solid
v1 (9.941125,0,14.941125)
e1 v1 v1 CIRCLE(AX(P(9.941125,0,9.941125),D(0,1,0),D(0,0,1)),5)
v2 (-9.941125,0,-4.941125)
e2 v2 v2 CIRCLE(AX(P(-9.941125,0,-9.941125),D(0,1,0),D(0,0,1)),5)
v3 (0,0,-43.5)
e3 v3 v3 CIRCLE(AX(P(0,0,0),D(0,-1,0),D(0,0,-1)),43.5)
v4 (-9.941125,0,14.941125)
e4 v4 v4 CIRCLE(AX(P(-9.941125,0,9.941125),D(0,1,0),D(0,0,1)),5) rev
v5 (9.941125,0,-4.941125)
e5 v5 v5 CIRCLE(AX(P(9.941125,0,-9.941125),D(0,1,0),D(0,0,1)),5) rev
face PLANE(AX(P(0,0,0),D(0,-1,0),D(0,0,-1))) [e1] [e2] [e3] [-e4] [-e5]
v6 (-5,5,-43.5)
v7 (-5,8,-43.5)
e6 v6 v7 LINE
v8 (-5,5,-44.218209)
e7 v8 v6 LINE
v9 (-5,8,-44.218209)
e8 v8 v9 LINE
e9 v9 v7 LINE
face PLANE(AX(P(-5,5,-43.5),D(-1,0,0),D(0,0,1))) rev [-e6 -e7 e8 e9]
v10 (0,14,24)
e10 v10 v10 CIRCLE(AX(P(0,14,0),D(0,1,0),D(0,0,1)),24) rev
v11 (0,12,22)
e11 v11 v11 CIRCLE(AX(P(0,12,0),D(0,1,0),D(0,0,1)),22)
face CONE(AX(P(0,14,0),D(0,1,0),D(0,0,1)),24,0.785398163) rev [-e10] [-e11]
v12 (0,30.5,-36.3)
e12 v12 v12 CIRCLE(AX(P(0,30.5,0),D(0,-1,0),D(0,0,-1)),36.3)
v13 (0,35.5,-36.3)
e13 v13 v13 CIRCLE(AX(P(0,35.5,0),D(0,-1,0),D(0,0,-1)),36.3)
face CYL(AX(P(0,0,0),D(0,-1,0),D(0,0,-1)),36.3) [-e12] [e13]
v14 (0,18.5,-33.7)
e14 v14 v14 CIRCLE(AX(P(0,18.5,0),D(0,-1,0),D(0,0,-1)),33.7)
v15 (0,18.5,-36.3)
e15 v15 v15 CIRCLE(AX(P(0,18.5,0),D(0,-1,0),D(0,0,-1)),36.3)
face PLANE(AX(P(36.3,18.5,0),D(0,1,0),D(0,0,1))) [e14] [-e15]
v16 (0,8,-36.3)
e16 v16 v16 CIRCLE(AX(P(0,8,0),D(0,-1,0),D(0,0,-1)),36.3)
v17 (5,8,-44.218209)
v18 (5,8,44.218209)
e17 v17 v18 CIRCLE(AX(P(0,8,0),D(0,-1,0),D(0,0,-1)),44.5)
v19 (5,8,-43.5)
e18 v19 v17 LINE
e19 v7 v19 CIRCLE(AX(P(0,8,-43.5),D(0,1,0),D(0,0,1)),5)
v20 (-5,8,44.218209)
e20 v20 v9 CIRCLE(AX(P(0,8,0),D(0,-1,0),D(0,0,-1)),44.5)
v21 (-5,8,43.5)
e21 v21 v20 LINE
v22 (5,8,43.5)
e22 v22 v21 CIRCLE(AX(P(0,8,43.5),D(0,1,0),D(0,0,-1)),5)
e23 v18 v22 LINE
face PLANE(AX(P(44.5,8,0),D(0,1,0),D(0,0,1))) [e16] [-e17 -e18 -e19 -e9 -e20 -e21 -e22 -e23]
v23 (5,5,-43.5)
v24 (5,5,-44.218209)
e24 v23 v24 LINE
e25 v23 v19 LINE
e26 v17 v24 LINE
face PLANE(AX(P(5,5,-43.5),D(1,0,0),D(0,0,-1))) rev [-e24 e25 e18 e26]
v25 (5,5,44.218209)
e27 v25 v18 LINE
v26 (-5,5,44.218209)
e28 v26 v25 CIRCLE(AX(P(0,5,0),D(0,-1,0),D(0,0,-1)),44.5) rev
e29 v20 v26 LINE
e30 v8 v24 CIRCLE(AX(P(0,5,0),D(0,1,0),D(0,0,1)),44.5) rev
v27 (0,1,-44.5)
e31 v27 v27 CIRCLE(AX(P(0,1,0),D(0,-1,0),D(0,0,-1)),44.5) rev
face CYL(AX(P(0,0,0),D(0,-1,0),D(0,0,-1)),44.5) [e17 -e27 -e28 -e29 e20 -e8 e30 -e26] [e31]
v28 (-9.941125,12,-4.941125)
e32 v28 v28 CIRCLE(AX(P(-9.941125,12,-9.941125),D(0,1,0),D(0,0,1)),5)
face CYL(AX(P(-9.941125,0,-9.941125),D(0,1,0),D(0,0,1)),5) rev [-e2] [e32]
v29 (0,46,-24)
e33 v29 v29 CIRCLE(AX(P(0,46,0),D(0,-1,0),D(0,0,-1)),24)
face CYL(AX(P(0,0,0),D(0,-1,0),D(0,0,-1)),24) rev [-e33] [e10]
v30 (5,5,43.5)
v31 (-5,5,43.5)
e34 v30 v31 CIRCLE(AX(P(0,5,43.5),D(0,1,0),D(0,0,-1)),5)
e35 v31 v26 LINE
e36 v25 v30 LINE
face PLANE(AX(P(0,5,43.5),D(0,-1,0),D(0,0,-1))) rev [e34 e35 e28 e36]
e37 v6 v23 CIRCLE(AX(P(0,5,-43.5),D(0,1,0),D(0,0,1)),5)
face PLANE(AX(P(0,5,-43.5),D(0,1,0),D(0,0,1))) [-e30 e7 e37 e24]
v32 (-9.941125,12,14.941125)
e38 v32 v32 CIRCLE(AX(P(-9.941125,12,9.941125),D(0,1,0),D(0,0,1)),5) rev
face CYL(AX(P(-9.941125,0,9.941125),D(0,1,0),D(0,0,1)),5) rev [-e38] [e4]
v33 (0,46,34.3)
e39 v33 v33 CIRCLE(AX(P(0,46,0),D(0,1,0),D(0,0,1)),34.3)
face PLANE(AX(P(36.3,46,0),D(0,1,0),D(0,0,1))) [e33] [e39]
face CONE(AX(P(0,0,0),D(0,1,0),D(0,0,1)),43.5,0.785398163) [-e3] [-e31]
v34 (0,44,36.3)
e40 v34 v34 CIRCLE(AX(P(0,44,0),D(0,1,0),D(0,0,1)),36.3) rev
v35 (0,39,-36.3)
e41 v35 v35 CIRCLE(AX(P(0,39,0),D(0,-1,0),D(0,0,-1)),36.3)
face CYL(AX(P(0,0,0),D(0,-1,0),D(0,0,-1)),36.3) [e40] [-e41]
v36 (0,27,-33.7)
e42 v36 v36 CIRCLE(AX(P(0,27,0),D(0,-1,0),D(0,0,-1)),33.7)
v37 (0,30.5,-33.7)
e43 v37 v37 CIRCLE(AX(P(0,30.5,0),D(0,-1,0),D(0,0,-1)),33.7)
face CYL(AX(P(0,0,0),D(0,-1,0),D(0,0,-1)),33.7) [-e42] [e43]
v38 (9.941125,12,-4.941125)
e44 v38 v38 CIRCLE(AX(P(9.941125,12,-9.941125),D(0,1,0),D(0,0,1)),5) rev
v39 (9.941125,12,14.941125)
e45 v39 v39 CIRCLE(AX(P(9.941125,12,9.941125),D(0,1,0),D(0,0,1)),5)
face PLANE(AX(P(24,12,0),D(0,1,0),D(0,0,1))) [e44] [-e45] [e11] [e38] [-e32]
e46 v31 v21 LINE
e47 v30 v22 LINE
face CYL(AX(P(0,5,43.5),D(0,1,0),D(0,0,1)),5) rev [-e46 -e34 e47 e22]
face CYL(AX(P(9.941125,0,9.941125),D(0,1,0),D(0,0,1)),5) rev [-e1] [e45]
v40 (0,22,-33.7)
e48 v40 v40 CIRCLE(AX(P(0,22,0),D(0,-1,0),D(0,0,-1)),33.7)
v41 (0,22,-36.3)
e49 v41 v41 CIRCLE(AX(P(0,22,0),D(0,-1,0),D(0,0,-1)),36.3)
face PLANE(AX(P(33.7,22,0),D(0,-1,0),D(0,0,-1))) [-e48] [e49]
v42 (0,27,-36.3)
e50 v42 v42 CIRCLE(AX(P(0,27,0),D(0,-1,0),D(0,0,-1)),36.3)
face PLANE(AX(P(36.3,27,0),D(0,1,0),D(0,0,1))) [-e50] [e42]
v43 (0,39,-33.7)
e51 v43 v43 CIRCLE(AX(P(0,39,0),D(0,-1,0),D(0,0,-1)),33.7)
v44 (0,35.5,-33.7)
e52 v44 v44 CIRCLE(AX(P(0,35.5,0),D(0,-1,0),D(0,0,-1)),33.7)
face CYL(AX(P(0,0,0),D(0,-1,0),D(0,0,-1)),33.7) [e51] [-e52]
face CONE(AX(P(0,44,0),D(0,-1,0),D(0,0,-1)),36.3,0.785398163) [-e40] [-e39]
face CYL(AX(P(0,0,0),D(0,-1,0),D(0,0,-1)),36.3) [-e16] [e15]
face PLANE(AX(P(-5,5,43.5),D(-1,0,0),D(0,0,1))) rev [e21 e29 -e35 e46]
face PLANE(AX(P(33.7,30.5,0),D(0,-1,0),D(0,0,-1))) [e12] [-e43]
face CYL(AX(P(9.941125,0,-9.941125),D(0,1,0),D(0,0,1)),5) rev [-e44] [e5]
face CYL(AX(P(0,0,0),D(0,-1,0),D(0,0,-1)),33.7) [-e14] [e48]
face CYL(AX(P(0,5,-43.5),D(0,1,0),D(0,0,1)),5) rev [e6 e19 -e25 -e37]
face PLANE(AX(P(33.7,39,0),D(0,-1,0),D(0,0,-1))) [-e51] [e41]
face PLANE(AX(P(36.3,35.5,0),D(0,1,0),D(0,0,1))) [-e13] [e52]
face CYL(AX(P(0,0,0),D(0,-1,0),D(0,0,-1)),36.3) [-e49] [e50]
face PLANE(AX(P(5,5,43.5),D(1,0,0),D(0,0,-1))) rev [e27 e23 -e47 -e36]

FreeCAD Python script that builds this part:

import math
import FreeCAD as App
import Part
import Sketcher

V = App.Vector


def edges_at(feature, points):
    """Names of the edges that pass closest to the given points."""
    edges = feature.Shape.Edges
    near = lambda p: min(range(len(edges)), key=lambda i: edges[i].distToShape(Part.Vertex(*p))[0])
    return sorted({f"Edge{near(p) + 1}" for p in points})

doc = App.newDocument("Part")
body = doc.addObject("PartDesign::Body", "Body")

sketch1 = body.newObject("Sketcher::SketchObject", "Sketch")
sketch1.AttachmentSupport = (doc.getObject("XY_Plane"), [""])
sketch1.MapMode = "FlatFace"
sketch1.addGeometry(Part.LineSegment(V(44.5, 0, 0), V(44.5, 8, 0)), False)
sketch1.addGeometry(Part.LineSegment(V(44.5, 8, 0), V(36.3, 8, 0)), False)
sketch1.addGeometry(Part.LineSegment(V(36.3, 8, 0), V(36.3, 18.5, 0)), False)
sketch1.addGeometry(Part.LineSegment(V(36.3, 18.5, 0), V(33.7, 18.5, 0)), False)
sketch1.addGeometry(Part.LineSegment(V(33.7, 18.5, 0), V(33.7, 22, 0)), False)
sketch1.addGeometry(Part.LineSegment(V(33.7, 22, 0), V(36.3, 22, 0)), False)
sketch1.addGeometry(Part.LineSegment(V(36.3, 22, 0), V(36.3, 27, 0)), False)
sketch1.addGeometry(Part.LineSegment(V(36.3, 27, 0), V(33.7, 27, 0)), False)
sketch1.addGeometry(Part.LineSegment(V(33.7, 27, 0), V(33.7, 30.5, 0)), False)
sketch1.addGeometry(Part.LineSegment(V(33.7, 30.5, 0), V(36.3, 30.5, 0)), False)
sketch1.addGeometry(Part.LineSegment(V(36.3, 30.5, 0), V(36.3, 35.5, 0)), False)
sketch1.addGeometry(Part.LineSegment(V(36.3, 35.5, 0), V(33.7, 35.5, 0)), False)
sketch1.addGeometry(Part.LineSegment(V(33.7, 35.5, 0), V(33.7, 39, 0)), False)
sketch1.addGeometry(Part.LineSegment(V(33.7, 39, 0), V(36.3, 39, 0)), False)
sketch1.addGeometry(Part.LineSegment(V(36.3, 39, 0), V(36.3, 46, 0)), False)
sketch1.addGeometry(Part.LineSegment(V(36.3, 46, 0), V(24, 46, 0)), False)
sketch1.addGeometry(Part.LineSegment(V(24, 46, 0), V(24, 12, 0)), False)
sketch1.addGeometry(Part.LineSegment(V(24, 12, 0), V(0, 12, 0)), False)
sketch1.addGeometry(Part.LineSegment(V(0, 12, 0), V(0, 0, 0)), False)
sketch1.addGeometry(Part.LineSegment(V(0, 0, 0), V(44.5, 0, 0)), False)
sketch1.addConstraint(Sketcher.Constraint("Coincident", 0, 2, 1, 1))
sketch1.addConstraint(Sketcher.Constraint("Coincident", 1, 2, 2, 1))
sketch1.addConstraint(Sketcher.Constraint("Coincident", 2, 2, 3, 1))
sketch1.addConstraint(Sketcher.Constraint("Coincident", 3, 2, 4, 1))
sketch1.addConstraint(Sketcher.Constraint("Coincident", 4, 2, 5, 1))
sketch1.addConstraint(Sketcher.Constraint("Coincident", 5, 2, 6, 1))
sketch1.addConstraint(Sketcher.Constraint("Coincident", 6, 2, 7, 1))
sketch1.addConstraint(Sketcher.Constraint("Coincident", 7, 2, 8, 1))
sketch1.addConstraint(Sketcher.Constraint("Coincident", 8, 2, 9, 1))
sketch1.addConstraint(Sketcher.Constraint("Coincident", 9, 2, 10, 1))
sketch1.addConstraint(Sketcher.Constraint("Coincident", 10, 2, 11, 1))
sketch1.addConstraint(Sketcher.Constraint("Coincident", 11, 2, 12, 1))
sketch1.addConstraint(Sketcher.Constraint("Coincident", 12, 2, 13, 1))
sketch1.addConstraint(Sketcher.Constraint("Coincident", 13, 2, 14, 1))
sketch1.addConstraint(Sketcher.Constraint("Coincident", 14, 2, 15, 1))
sketch1.addConstraint(Sketcher.Constraint("Coincident", 15, 2, 16, 1))
sketch1.addConstraint(Sketcher.Constraint("Coincident", 16, 2, 17, 1))
sketch1.addConstraint(Sketcher.Constraint("Coincident", 17, 2, 18, 1))
sketch1.addConstraint(Sketcher.Constraint("Coincident", 18, 2, 19, 1))
sketch1.addConstraint(Sketcher.Constraint("Coincident", 19, 2, 0, 1))
sketch1.addConstraint(Sketcher.Constraint("Vertical", 0))
sketch1.addConstraint(Sketcher.Constraint("Horizontal", 1))
sketch1.addConstraint(Sketcher.Constraint("Vertical", 2))
sketch1.addConstraint(Sketcher.Constraint("Horizontal", 3))
sketch1.addConstraint(Sketcher.Constraint("Vertical", 4))
sketch1.addConstraint(Sketcher.Constraint("Horizontal", 5))
sketch1.addConstraint(Sketcher.Constraint("Vertical", 6))
sketch1.addConstraint(Sketcher.Constraint("Horizontal", 7))
sketch1.addConstraint(Sketcher.Constraint("Vertical", 8))
sketch1.addConstraint(Sketcher.Constraint("Horizontal", 9))
sketch1.addConstraint(Sketcher.Constraint("Vertical", 10))
sketch1.addConstraint(Sketcher.Constraint("Horizontal", 11))
sketch1.addConstraint(Sketcher.Constraint("Vertical", 12))
sketch1.addConstraint(Sketcher.Constraint("Horizontal", 13))
sketch1.addConstraint(Sketcher.Constraint("Vertical", 14))
sketch1.addConstraint(Sketcher.Constraint("Horizontal", 15))
sketch1.addConstraint(Sketcher.Constraint("Vertical", 16))
sketch1.addConstraint(Sketcher.Constraint("Horizontal", 17))
sketch1.addConstraint(Sketcher.Constraint("Vertical", 18))
sketch1.addConstraint(Sketcher.Constraint("Horizontal", 19))
sketch1.addConstraint(Sketcher.Constraint("Coincident", 18, 2, -1, 1))
sketch1.addConstraint(Sketcher.Constraint("Vertical", 2, 2, 5, 2))
sketch1.addConstraint(Sketcher.Constraint("Vertical", 4, 2, 7, 2))
sketch1.addConstraint(Sketcher.Constraint("Vertical", 6, 2, 9, 2))
sketch1.addConstraint(Sketcher.Constraint("Vertical", 8, 2, 11, 2))
sketch1.addConstraint(Sketcher.Constraint("Vertical", 10, 2, 13, 2))
sketch1.addConstraint(Sketcher.Constraint("Equal", 4, 8))
sketch1.addConstraint(Sketcher.Constraint("Equal", 6, 10))
sketch1.addConstraint(Sketcher.Constraint("Equal", 8, 12))
sketch1.addConstraint(Sketcher.Constraint("DistanceX", 17, 2, 17, 1, 24.0))
sketch1.addConstraint(Sketcher.Constraint("DistanceY", 0, 1, 0, 2, 8.0))
sketch1.addConstraint(Sketcher.Constraint("DistanceY", 6, 1, 6, 2, 5.0))
sketch1.addConstraint(Sketcher.Constraint("DistanceY", 14, 1, 14, 2, 7.0))
sketch1.addConstraint(Sketcher.Constraint("DistanceY", 16, 2, 16, 1, 34.0))
sketch1.addConstraint(Sketcher.Constraint("DistanceY", 18, 2, 18, 1, 12.0))
sketch1.addConstraint(Sketcher.Constraint("DistanceX", 1, 2, 1, 1, 8.2))
sketch1.addConstraint(Sketcher.Constraint("DistanceX", 3, 2, 3, 1, 2.6))
sketch1.addConstraint(Sketcher.Constraint("DistanceX", 15, 2, 15, 1, 12.3))
sketch1.addConstraint(Sketcher.Constraint("DistanceY", 2, 1, 2, 2, 10.5))
revolution = body.newObject("PartDesign::Revolution", "Revolution")
revolution.Profile = sketch1
revolution.ReferenceAxis = (sketch1, ["V_Axis"])
revolution.Angle = 360

sketch2 = body.newObject("Sketcher::SketchObject", "Sketch001")
sketch2.AttachmentSupport = (doc.getObject("XZ_Plane"), [""])
sketch2.MapMode = "FlatFace"
sketch2.AttachmentOffset = App.Placement(V(0, 0, -8), App.Rotation())
sketch2.addGeometry(Part.LineSegment(V(-5, -45.5, 0), V(-5, -43.5, 0)), False)
sketch2.addGeometry(Part.ArcOfCircle(Part.Circle(V(0, -43.5, 0), V(0, 0, 1), 5), math.radians(0), math.radians(180)), False)
sketch2.addGeometry(Part.LineSegment(V(5, -43.5, 0), V(5, -45.5, 0)), False)
sketch2.addGeometry(Part.ArcOfCircle(Part.Circle(V(0, -45.5, 0), V(0, 0, 1), 5), math.radians(180), math.radians(360)), False)
sketch2.addGeometry(Part.LineSegment(V(-5, 43.5, 0), V(-5, 45.5, 0)), False)
sketch2.addGeometry(Part.ArcOfCircle(Part.Circle(V(0, 45.5, 0), V(0, 0, 1), 5), math.radians(0), math.radians(180)), False)
sketch2.addGeometry(Part.LineSegment(V(5, 45.5, 0), V(5, 43.5, 0)), False)
sketch2.addGeometry(Part.ArcOfCircle(Part.Circle(V(0, 43.5, 0), V(0, 0, 1), 5), math.radians(180), math.radians(360)), False)
sketch2.addConstraint(Sketcher.Constraint("Tangent", 0, 2, 1, 2))
sketch2.addConstraint(Sketcher.Constraint("Tangent", 1, 1, 2, 1))
sketch2.addConstraint(Sketcher.Constraint("Tangent", 2, 2, 3, 2))
sketch2.addConstraint(Sketcher.Constraint("Tangent", 3, 1, 0, 1))
sketch2.addConstraint(Sketcher.Constraint("Tangent", 4, 2, 5, 2))
sketch2.addConstraint(Sketcher.Constraint("Tangent", 5, 1, 6, 1))
sketch2.addConstraint(Sketcher.Constraint("Tangent", 6, 2, 7, 2))
sketch2.addConstraint(Sketcher.Constraint("Tangent", 7, 1, 4, 1))
sketch2.addConstraint(Sketcher.Constraint("Vertical", 0))
sketch2.addConstraint(Sketcher.Constraint("Vertical", 2))
sketch2.addConstraint(Sketcher.Constraint("Vertical", 4))
sketch2.addConstraint(Sketcher.Constraint("Vertical", 6))
sketch2.addConstraint(Sketcher.Constraint("Equal", 3, 5))
sketch2.addConstraint(Sketcher.Constraint("Symmetric", 3, 3, 5, 3, -1, 1))
sketch2.addConstraint(Sketcher.Constraint("Symmetric", 1, 3, 7, 3, -1))
sketch2.addConstraint(Sketcher.Constraint("Radius", 1, 5.0))
sketch2.addConstraint(Sketcher.Constraint("DistanceY", 0, 1, 0, 2, 2.0))
sketch2.addConstraint(Sketcher.Constraint("DistanceY", 1, 3, 5, 3, 89.0))
pocket1 = body.newObject("PartDesign::Pocket", "Pocket")
pocket1.Profile = sketch2
pocket1.Length = 3
pocket1.Reversed = True

sketch3 = body.newObject("Sketcher::SketchObject", "Sketch002")
sketch3.AttachmentSupport = (doc.getObject("XZ_Plane"), [""])
sketch3.MapMode = "FlatFace"
sketch3.AttachmentOffset = App.Placement(V(0, 0, -12), App.Rotation())
sketch3.addGeometry(Part.Circle(V(-10, -10, 0), V(0, 0, 1), 5), False)
sketch3.addGeometry(Part.Circle(V(10, -10, 0), V(0, 0, 1), 5), False)
sketch3.addGeometry(Part.Circle(V(-10, 10, 0), V(0, 0, 1), 5), False)
sketch3.addGeometry(Part.Circle(V(10, 10, 0), V(0, 0, 1), 5), False)
sketch3.addConstraint(Sketcher.Constraint("Equal", 0, 1))
sketch3.addConstraint(Sketcher.Constraint("Equal", 1, 2))
sketch3.addConstraint(Sketcher.Constraint("Equal", 2, 3))
sketch3.addConstraint(Sketcher.Constraint("Symmetric", 1, 3, 2, 3, -1, 1))
sketch3.addConstraint(Sketcher.Constraint("Symmetric", 0, 3, 3, 3, -1, 1))
sketch3.addConstraint(Sketcher.Constraint("Symmetric", 0, 3, 1, 3, -2))
sketch3.addConstraint(Sketcher.Constraint("Diameter", 0, 10.0))
sketch3.addConstraint(Sketcher.Constraint("DistanceX", 0, 3, 1, 3, 19.882251))
sketch3.addConstraint(Sketcher.Constraint("DistanceY", 0, 3, 2, 3, 19.882251))
pocket2 = body.newObject("PartDesign::Pocket", "Pocket001")
pocket2.Profile = sketch3
pocket2.Type = "ThroughAll"
pocket2.Reversed = True
doc.recompute()

chamfer = body.newObject("PartDesign::Chamfer", "Chamfer")
chamfer.Base = (pocket2, edges_at(pocket2, [(0, 46, 36.3)]))
chamfer.Size = 2
doc.recompute()

chamfer2 = body.newObject("PartDesign::Chamfer", "Chamfer001")
chamfer2.Base = (chamfer, edges_at(chamfer, [(0, 12, 24)]))
chamfer2.Size = 2
doc.recompute()

chamfer3 = body.newObject("PartDesign::Chamfer", "Chamfer002")
chamfer3.Base = (chamfer2, edges_at(chamfer2, [(0, 0, 44.5)]))
chamfer3.Size = 1

doc.recompute()
